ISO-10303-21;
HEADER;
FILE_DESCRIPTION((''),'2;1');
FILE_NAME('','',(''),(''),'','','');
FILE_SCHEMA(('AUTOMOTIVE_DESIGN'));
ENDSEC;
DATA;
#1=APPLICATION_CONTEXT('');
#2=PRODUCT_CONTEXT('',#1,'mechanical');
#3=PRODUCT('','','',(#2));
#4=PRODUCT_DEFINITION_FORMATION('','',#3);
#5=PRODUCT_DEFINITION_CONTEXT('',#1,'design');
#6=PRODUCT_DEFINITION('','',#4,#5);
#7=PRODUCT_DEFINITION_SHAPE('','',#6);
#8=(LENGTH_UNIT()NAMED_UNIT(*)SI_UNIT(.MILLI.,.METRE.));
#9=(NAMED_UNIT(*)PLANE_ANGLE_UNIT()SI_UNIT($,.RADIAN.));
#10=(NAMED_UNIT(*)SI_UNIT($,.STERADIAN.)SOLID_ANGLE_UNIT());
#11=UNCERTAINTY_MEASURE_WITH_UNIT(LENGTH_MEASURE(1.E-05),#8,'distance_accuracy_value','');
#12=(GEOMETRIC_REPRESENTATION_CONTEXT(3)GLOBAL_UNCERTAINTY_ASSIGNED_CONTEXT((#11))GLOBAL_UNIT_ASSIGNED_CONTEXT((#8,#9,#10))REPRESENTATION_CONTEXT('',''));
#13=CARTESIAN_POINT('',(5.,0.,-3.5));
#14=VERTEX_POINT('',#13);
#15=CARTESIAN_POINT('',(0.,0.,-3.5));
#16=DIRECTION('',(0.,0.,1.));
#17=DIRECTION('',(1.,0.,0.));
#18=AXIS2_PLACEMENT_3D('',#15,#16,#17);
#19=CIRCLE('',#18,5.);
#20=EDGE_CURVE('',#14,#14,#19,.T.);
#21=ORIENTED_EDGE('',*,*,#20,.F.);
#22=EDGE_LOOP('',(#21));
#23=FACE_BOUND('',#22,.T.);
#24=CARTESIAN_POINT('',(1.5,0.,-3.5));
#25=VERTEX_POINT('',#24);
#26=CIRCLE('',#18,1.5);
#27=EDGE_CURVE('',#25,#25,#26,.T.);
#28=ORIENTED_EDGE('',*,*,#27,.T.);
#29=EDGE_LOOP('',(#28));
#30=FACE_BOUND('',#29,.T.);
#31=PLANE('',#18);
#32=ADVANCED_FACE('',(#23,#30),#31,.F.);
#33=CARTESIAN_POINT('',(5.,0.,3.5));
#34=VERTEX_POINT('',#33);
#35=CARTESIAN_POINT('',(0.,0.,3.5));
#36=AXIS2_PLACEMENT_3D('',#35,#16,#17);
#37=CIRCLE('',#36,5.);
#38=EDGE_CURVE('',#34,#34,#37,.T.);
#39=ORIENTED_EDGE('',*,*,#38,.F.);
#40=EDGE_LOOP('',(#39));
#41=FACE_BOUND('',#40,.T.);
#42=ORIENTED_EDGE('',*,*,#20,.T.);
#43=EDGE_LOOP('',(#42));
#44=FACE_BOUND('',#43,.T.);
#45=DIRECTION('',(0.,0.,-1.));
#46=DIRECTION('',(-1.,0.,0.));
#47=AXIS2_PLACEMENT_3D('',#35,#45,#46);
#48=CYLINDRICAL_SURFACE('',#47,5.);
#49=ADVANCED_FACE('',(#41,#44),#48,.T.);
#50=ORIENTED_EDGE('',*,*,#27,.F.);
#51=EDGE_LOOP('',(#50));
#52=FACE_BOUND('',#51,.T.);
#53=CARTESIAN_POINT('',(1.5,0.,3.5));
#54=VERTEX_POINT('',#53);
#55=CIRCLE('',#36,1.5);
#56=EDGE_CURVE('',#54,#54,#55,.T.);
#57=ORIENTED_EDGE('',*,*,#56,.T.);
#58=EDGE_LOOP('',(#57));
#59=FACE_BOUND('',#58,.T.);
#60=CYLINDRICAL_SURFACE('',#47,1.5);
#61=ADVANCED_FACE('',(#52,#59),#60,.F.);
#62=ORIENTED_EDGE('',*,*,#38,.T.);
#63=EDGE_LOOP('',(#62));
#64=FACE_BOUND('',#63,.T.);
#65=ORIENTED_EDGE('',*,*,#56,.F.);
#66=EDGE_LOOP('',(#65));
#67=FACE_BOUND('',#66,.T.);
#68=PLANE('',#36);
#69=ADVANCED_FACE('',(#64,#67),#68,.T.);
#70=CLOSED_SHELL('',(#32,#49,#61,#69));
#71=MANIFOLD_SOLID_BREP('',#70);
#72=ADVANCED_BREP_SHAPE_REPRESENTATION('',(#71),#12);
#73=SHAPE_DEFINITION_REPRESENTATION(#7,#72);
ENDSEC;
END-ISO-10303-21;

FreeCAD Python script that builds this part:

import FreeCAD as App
import Part
import Sketcher
Q = App.Units.Quantity

doc = App.newDocument("Part")
body = doc.addObject("PartDesign::Body", "Body")

sketch1 = body.newObject("Sketcher::SketchObject", "Sketch")
sketch1.AttachmentSupport = (doc.getObject("XY_Plane"), [""])
sketch1.MapMode = "FlatFace"
sketch1.addGeometry([
    Part.Circle(App.Vector(0, 0, 0), App.Vector(0, 0, 1), 5),
    Part.Circle(App.Vector(0, 0, 0), App.Vector(0, 0, 1), 1.5),
], False)
sketch1.addConstraint([
    Sketcher.Constraint("Coincident", 0, 3, -1, 1),
    Sketcher.Constraint("Coincident", 1, 3, -1, 1),
    Sketcher.Constraint("Diameter", 0, Q("10 mm")),
    Sketcher.Constraint("Diameter", 1, Q("3 mm")),
])
pad1 = body.newObject("PartDesign::Pad", "Pad")
pad1.Profile = sketch1
pad1.Length = 7
pad1.Midplane = True

doc.recompute()
